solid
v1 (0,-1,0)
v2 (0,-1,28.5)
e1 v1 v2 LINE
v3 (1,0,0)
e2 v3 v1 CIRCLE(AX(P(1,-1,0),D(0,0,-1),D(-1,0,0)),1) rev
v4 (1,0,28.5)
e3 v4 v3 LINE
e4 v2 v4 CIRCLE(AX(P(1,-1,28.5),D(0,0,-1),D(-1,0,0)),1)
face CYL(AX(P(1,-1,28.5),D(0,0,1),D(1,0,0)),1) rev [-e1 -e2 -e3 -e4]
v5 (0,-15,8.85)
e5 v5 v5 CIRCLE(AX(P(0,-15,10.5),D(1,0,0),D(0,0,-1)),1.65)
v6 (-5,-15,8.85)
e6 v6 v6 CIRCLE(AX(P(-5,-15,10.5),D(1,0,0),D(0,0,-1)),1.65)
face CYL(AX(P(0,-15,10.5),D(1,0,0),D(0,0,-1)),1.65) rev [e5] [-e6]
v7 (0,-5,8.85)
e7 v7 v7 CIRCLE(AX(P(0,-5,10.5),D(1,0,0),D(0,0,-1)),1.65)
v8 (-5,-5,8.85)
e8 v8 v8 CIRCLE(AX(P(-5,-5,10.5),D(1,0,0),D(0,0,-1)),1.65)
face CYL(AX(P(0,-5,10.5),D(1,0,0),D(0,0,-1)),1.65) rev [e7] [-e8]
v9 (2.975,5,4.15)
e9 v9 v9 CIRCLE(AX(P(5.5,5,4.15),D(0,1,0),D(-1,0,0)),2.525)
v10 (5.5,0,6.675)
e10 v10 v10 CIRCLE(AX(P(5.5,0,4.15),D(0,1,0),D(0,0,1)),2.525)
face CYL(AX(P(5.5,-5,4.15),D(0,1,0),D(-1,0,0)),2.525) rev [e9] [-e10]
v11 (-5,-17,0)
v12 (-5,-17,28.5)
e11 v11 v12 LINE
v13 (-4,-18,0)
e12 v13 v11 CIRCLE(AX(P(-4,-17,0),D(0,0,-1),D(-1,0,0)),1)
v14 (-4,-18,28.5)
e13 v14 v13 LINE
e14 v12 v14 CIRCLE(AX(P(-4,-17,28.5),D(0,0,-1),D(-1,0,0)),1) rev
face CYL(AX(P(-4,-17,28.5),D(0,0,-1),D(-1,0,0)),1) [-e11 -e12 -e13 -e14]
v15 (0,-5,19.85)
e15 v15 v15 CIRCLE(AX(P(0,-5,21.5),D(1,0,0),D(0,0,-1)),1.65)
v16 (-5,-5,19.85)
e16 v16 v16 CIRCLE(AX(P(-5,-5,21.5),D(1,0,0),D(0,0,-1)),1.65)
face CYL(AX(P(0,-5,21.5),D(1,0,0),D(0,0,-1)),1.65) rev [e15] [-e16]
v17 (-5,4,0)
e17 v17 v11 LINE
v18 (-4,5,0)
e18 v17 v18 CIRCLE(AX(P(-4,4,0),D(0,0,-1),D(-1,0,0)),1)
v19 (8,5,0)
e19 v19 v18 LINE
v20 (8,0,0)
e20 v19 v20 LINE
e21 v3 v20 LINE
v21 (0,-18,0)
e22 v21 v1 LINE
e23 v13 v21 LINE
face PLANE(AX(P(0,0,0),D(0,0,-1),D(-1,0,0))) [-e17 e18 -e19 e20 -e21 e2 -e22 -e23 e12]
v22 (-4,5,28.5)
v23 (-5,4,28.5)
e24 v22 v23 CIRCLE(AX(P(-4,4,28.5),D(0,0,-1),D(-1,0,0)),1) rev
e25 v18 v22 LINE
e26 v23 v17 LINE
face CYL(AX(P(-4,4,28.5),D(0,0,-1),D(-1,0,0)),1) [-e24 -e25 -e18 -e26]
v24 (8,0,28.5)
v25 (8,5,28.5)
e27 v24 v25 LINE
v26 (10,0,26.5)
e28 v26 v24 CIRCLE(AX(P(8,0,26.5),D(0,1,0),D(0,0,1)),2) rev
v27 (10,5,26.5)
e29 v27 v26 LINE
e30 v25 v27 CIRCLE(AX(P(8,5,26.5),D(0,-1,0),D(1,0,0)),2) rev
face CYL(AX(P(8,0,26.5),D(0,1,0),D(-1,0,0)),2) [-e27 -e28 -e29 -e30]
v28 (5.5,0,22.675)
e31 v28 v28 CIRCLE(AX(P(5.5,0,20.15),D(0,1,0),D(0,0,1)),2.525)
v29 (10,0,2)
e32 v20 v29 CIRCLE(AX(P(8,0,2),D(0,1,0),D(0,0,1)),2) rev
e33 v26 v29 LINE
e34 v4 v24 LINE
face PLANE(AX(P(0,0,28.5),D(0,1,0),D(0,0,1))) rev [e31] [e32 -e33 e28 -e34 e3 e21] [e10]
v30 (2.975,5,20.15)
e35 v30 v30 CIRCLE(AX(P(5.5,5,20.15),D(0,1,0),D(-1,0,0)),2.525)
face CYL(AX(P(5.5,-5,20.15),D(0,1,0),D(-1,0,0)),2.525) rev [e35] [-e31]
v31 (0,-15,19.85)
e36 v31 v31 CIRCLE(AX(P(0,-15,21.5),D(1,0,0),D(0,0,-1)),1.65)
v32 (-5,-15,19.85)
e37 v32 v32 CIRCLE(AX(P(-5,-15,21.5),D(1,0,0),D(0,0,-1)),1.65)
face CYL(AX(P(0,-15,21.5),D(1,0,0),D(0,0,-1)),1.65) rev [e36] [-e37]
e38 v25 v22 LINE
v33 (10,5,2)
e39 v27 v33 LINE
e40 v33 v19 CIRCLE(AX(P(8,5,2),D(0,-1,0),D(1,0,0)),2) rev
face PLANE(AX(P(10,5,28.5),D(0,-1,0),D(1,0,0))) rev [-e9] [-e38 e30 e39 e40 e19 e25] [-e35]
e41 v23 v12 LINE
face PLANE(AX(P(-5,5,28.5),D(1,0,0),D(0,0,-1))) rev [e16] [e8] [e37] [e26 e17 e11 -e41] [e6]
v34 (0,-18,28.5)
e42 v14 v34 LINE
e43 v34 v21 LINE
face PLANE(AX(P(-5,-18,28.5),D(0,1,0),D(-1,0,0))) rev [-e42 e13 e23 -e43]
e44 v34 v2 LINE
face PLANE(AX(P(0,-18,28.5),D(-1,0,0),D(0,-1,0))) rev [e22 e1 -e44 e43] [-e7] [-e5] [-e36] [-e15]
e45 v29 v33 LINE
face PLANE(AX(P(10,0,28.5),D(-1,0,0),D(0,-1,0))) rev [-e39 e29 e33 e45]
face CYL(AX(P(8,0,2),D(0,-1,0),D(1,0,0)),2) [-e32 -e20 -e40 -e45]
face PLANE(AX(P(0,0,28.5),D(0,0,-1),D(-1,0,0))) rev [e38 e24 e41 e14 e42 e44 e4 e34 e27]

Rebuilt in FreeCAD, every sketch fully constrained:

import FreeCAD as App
import Part
import Sketcher


def edges_at(feature, points):
    """Names of the edges that pass closest to the given points."""
    edges = feature.Shape.Edges
    near = lambda p: min(range(len(edges)), key=lambda i: edges[i].distToShape(Part.Vertex(*p))[0])
    return sorted({f"Edge{near(p) + 1}" for p in points})

doc = App.newDocument("Part")
body = doc.addObject("PartDesign::Body", "Body")

# Sketch on XY plane
sketch1 = body.newObject("Sketcher::SketchObject", "Sketch")
sketch1.AttachmentSupport = (doc.getObject("XY_Plane"), [""])
sketch1.MapMode = "FlatFace"
sketch1.addGeometry(Part.LineSegment(App.Vector(0, 0, 0), App.Vector(10, 0, 0)), False)
sketch1.addGeometry(Part.LineSegment(App.Vector(10, 0, 0), App.Vector(10, 5, 0)), False)
sketch1.addGeometry(Part.LineSegment(App.Vector(10, 5, 0), App.Vector(-5, 5, 0)), False)
sketch1.addGeometry(Part.LineSegment(App.Vector(-5, 5, 0), App.Vector(-5, -18, 0)), False)
sketch1.addGeometry(Part.LineSegment(App.Vector(-5, -18, 0), App.Vector(0, -18, 0)), False)
sketch1.addGeometry(Part.LineSegment(App.Vector(0, -18, 0), App.Vector(0, 0, 0)), False)
sketch1.addConstraint(Sketcher.Constraint("Coincident", 0, 2, 1, 1))
sketch1.addConstraint(Sketcher.Constraint("Coincident", 1, 2, 2, 1))
sketch1.addConstraint(Sketcher.Constraint("Coincident", 2, 2, 3, 1))
sketch1.addConstraint(Sketcher.Constraint("Coincident", 3, 2, 4, 1))
sketch1.addConstraint(Sketcher.Constraint("Coincident", 4, 2, 5, 1))
sketch1.addConstraint(Sketcher.Constraint("Coincident", 5, 2, 0, 1))
sketch1.addConstraint(Sketcher.Constraint("Horizontal", 0))
sketch1.addConstraint(Sketcher.Constraint("Vertical", 1))
sketch1.addConstraint(Sketcher.Constraint("Horizontal", 2))
sketch1.addConstraint(Sketcher.Constraint("Vertical", 3))
sketch1.addConstraint(Sketcher.Constraint("Horizontal", 4))
sketch1.addConstraint(Sketcher.Constraint("Vertical", 5))
sketch1.addConstraint(Sketcher.Constraint("Coincident", 5, 2, -1, 1))
sketch1.addConstraint(Sketcher.Constraint("Equal", 4, 1))
sketch1.addConstraint(Sketcher.Constraint("DistanceX", 0, 1, 0, 2, 10.0))
sketch1.addConstraint(Sketcher.Constraint("DistanceX", 2, 2, 2, 1, 15.0))
sketch1.addConstraint(Sketcher.Constraint("DistanceY", 3, 2, 3, 1, 23.0))
pad1 = body.newObject("PartDesign::Pad", "Pad")
pad1.Profile = sketch1
pad1.Length = 28.5

# Sketch on YZ plane
sketch2 = body.newObject("Sketcher::SketchObject", "Sketch001")
sketch2.AttachmentSupport = (doc.getObject("YZ_Plane"), [""])
sketch2.MapMode = "FlatFace"
sketch2.addGeometry(Part.Circle(App.Vector(-5, 21.5, 0), App.Vector(0, 0, 1), 1.6), False)
sketch2.addGeometry(Part.Circle(App.Vector(-15, 21.5, 0), App.Vector(0, 0, 1), 1.6), False)
sketch2.addGeometry(Part.Circle(App.Vector(-15, 10.5, 0), App.Vector(0, 0, 1), 1.6), False)
sketch2.addGeometry(Part.Circle(App.Vector(-5, 10.5, 0), App.Vector(0, 0, 1), 1.6), False)
sketch2.addConstraint(Sketcher.Constraint("Equal", 0, 1))
sketch2.addConstraint(Sketcher.Constraint("Equal", 1, 2))
sketch2.addConstraint(Sketcher.Constraint("Equal", 2, 3))
sketch2.addConstraint(Sketcher.Constraint("Horizontal", 0, 3, 1, 3))
sketch2.addConstraint(Sketcher.Constraint("Horizontal", 2, 3, 3, 3))
sketch2.addConstraint(Sketcher.Constraint("Vertical", 1, 3, 2, 3))
sketch2.addConstraint(Sketcher.Constraint("Vertical", 0, 3, 3, 3))
sketch2.addConstraint(Sketcher.Constraint("Diameter", 0, 3.3))
sketch2.addConstraint(Sketcher.Constraint("DistanceX", 0, 3, -1, 1, 5.0))
sketch2.addConstraint(Sketcher.Constraint("DistanceX", 1, 3, -1, 1, 15.0))
sketch2.addConstraint(Sketcher.Constraint("DistanceY", 2, 3, 1, 3, 11.0))
sketch2.addConstraint(Sketcher.Constraint("DistanceY", -1, 1, 0, 3, 21.5))
doc.recompute()
hole = body.newObject("PartDesign::Hole", "Hole")
hole.Profile = sketch2
hole.ThreadType = "None"
hole.Diameter = 3.3
hole.DepthType = "ThroughAll"
doc.recompute()

fillet = body.newObject("PartDesign::Fillet", "Fillet")
fillet.Base = (hole, edges_at(hole, [(10, 2.5, 28.5), (10, 2.5, 0)]))
fillet.Radius = 2

# Sketch on XZ plane
sketch3 = body.newObject("Sketcher::SketchObject", "Sketch002")
sketch3.AttachmentSupport = (doc.getObject("XZ_Plane"), [""])
sketch3.MapMode = "FlatFace"
sketch3.AttachmentOffset = App.Placement(App.Vector(0, 0, -5), App.Rotation())
sketch3.addGeometry(Part.Circle(App.Vector(5.5, 20.1, 0), App.Vector(0, 0, 1), 2.5), False)
sketch3.addGeometry(Part.Circle(App.Vector(5.5, 4.2, 0), App.Vector(0, 0, 1), 2.5), False)
sketch3.addConstraint(Sketcher.Constraint("Equal", 0, 1))
sketch3.addConstraint(Sketcher.Constraint("Vertical", 0, 3, 1, 3))
sketch3.addConstraint(Sketcher.Constraint("Diameter", 0, 5.05))
sketch3.addConstraint(Sketcher.Constraint("DistanceY", 1, 3, 0, 3, 16.0))
sketch3.addConstraint(Sketcher.Constraint("DistanceX", -1, 1, 0, 3, 5.5))
sketch3.addConstraint(Sketcher.Constraint("DistanceY", -1, 1, 0, 3, 20.15))
pocket1 = body.newObject("PartDesign::Pocket", "Pocket")
pocket1.Profile = sketch3
pocket1.Length = 10
pocket1.Reversed = True
doc.recompute()

fillet2 = body.newObject("PartDesign::Fillet", "Fillet001")
fillet2.Base = (pocket1, edges_at(pocket1, [(-5, -18, 14.25), (-5, 5, 14.25), (0, 0, 14.25)]))
fillet2.Radius = 1

doc.recompute()
